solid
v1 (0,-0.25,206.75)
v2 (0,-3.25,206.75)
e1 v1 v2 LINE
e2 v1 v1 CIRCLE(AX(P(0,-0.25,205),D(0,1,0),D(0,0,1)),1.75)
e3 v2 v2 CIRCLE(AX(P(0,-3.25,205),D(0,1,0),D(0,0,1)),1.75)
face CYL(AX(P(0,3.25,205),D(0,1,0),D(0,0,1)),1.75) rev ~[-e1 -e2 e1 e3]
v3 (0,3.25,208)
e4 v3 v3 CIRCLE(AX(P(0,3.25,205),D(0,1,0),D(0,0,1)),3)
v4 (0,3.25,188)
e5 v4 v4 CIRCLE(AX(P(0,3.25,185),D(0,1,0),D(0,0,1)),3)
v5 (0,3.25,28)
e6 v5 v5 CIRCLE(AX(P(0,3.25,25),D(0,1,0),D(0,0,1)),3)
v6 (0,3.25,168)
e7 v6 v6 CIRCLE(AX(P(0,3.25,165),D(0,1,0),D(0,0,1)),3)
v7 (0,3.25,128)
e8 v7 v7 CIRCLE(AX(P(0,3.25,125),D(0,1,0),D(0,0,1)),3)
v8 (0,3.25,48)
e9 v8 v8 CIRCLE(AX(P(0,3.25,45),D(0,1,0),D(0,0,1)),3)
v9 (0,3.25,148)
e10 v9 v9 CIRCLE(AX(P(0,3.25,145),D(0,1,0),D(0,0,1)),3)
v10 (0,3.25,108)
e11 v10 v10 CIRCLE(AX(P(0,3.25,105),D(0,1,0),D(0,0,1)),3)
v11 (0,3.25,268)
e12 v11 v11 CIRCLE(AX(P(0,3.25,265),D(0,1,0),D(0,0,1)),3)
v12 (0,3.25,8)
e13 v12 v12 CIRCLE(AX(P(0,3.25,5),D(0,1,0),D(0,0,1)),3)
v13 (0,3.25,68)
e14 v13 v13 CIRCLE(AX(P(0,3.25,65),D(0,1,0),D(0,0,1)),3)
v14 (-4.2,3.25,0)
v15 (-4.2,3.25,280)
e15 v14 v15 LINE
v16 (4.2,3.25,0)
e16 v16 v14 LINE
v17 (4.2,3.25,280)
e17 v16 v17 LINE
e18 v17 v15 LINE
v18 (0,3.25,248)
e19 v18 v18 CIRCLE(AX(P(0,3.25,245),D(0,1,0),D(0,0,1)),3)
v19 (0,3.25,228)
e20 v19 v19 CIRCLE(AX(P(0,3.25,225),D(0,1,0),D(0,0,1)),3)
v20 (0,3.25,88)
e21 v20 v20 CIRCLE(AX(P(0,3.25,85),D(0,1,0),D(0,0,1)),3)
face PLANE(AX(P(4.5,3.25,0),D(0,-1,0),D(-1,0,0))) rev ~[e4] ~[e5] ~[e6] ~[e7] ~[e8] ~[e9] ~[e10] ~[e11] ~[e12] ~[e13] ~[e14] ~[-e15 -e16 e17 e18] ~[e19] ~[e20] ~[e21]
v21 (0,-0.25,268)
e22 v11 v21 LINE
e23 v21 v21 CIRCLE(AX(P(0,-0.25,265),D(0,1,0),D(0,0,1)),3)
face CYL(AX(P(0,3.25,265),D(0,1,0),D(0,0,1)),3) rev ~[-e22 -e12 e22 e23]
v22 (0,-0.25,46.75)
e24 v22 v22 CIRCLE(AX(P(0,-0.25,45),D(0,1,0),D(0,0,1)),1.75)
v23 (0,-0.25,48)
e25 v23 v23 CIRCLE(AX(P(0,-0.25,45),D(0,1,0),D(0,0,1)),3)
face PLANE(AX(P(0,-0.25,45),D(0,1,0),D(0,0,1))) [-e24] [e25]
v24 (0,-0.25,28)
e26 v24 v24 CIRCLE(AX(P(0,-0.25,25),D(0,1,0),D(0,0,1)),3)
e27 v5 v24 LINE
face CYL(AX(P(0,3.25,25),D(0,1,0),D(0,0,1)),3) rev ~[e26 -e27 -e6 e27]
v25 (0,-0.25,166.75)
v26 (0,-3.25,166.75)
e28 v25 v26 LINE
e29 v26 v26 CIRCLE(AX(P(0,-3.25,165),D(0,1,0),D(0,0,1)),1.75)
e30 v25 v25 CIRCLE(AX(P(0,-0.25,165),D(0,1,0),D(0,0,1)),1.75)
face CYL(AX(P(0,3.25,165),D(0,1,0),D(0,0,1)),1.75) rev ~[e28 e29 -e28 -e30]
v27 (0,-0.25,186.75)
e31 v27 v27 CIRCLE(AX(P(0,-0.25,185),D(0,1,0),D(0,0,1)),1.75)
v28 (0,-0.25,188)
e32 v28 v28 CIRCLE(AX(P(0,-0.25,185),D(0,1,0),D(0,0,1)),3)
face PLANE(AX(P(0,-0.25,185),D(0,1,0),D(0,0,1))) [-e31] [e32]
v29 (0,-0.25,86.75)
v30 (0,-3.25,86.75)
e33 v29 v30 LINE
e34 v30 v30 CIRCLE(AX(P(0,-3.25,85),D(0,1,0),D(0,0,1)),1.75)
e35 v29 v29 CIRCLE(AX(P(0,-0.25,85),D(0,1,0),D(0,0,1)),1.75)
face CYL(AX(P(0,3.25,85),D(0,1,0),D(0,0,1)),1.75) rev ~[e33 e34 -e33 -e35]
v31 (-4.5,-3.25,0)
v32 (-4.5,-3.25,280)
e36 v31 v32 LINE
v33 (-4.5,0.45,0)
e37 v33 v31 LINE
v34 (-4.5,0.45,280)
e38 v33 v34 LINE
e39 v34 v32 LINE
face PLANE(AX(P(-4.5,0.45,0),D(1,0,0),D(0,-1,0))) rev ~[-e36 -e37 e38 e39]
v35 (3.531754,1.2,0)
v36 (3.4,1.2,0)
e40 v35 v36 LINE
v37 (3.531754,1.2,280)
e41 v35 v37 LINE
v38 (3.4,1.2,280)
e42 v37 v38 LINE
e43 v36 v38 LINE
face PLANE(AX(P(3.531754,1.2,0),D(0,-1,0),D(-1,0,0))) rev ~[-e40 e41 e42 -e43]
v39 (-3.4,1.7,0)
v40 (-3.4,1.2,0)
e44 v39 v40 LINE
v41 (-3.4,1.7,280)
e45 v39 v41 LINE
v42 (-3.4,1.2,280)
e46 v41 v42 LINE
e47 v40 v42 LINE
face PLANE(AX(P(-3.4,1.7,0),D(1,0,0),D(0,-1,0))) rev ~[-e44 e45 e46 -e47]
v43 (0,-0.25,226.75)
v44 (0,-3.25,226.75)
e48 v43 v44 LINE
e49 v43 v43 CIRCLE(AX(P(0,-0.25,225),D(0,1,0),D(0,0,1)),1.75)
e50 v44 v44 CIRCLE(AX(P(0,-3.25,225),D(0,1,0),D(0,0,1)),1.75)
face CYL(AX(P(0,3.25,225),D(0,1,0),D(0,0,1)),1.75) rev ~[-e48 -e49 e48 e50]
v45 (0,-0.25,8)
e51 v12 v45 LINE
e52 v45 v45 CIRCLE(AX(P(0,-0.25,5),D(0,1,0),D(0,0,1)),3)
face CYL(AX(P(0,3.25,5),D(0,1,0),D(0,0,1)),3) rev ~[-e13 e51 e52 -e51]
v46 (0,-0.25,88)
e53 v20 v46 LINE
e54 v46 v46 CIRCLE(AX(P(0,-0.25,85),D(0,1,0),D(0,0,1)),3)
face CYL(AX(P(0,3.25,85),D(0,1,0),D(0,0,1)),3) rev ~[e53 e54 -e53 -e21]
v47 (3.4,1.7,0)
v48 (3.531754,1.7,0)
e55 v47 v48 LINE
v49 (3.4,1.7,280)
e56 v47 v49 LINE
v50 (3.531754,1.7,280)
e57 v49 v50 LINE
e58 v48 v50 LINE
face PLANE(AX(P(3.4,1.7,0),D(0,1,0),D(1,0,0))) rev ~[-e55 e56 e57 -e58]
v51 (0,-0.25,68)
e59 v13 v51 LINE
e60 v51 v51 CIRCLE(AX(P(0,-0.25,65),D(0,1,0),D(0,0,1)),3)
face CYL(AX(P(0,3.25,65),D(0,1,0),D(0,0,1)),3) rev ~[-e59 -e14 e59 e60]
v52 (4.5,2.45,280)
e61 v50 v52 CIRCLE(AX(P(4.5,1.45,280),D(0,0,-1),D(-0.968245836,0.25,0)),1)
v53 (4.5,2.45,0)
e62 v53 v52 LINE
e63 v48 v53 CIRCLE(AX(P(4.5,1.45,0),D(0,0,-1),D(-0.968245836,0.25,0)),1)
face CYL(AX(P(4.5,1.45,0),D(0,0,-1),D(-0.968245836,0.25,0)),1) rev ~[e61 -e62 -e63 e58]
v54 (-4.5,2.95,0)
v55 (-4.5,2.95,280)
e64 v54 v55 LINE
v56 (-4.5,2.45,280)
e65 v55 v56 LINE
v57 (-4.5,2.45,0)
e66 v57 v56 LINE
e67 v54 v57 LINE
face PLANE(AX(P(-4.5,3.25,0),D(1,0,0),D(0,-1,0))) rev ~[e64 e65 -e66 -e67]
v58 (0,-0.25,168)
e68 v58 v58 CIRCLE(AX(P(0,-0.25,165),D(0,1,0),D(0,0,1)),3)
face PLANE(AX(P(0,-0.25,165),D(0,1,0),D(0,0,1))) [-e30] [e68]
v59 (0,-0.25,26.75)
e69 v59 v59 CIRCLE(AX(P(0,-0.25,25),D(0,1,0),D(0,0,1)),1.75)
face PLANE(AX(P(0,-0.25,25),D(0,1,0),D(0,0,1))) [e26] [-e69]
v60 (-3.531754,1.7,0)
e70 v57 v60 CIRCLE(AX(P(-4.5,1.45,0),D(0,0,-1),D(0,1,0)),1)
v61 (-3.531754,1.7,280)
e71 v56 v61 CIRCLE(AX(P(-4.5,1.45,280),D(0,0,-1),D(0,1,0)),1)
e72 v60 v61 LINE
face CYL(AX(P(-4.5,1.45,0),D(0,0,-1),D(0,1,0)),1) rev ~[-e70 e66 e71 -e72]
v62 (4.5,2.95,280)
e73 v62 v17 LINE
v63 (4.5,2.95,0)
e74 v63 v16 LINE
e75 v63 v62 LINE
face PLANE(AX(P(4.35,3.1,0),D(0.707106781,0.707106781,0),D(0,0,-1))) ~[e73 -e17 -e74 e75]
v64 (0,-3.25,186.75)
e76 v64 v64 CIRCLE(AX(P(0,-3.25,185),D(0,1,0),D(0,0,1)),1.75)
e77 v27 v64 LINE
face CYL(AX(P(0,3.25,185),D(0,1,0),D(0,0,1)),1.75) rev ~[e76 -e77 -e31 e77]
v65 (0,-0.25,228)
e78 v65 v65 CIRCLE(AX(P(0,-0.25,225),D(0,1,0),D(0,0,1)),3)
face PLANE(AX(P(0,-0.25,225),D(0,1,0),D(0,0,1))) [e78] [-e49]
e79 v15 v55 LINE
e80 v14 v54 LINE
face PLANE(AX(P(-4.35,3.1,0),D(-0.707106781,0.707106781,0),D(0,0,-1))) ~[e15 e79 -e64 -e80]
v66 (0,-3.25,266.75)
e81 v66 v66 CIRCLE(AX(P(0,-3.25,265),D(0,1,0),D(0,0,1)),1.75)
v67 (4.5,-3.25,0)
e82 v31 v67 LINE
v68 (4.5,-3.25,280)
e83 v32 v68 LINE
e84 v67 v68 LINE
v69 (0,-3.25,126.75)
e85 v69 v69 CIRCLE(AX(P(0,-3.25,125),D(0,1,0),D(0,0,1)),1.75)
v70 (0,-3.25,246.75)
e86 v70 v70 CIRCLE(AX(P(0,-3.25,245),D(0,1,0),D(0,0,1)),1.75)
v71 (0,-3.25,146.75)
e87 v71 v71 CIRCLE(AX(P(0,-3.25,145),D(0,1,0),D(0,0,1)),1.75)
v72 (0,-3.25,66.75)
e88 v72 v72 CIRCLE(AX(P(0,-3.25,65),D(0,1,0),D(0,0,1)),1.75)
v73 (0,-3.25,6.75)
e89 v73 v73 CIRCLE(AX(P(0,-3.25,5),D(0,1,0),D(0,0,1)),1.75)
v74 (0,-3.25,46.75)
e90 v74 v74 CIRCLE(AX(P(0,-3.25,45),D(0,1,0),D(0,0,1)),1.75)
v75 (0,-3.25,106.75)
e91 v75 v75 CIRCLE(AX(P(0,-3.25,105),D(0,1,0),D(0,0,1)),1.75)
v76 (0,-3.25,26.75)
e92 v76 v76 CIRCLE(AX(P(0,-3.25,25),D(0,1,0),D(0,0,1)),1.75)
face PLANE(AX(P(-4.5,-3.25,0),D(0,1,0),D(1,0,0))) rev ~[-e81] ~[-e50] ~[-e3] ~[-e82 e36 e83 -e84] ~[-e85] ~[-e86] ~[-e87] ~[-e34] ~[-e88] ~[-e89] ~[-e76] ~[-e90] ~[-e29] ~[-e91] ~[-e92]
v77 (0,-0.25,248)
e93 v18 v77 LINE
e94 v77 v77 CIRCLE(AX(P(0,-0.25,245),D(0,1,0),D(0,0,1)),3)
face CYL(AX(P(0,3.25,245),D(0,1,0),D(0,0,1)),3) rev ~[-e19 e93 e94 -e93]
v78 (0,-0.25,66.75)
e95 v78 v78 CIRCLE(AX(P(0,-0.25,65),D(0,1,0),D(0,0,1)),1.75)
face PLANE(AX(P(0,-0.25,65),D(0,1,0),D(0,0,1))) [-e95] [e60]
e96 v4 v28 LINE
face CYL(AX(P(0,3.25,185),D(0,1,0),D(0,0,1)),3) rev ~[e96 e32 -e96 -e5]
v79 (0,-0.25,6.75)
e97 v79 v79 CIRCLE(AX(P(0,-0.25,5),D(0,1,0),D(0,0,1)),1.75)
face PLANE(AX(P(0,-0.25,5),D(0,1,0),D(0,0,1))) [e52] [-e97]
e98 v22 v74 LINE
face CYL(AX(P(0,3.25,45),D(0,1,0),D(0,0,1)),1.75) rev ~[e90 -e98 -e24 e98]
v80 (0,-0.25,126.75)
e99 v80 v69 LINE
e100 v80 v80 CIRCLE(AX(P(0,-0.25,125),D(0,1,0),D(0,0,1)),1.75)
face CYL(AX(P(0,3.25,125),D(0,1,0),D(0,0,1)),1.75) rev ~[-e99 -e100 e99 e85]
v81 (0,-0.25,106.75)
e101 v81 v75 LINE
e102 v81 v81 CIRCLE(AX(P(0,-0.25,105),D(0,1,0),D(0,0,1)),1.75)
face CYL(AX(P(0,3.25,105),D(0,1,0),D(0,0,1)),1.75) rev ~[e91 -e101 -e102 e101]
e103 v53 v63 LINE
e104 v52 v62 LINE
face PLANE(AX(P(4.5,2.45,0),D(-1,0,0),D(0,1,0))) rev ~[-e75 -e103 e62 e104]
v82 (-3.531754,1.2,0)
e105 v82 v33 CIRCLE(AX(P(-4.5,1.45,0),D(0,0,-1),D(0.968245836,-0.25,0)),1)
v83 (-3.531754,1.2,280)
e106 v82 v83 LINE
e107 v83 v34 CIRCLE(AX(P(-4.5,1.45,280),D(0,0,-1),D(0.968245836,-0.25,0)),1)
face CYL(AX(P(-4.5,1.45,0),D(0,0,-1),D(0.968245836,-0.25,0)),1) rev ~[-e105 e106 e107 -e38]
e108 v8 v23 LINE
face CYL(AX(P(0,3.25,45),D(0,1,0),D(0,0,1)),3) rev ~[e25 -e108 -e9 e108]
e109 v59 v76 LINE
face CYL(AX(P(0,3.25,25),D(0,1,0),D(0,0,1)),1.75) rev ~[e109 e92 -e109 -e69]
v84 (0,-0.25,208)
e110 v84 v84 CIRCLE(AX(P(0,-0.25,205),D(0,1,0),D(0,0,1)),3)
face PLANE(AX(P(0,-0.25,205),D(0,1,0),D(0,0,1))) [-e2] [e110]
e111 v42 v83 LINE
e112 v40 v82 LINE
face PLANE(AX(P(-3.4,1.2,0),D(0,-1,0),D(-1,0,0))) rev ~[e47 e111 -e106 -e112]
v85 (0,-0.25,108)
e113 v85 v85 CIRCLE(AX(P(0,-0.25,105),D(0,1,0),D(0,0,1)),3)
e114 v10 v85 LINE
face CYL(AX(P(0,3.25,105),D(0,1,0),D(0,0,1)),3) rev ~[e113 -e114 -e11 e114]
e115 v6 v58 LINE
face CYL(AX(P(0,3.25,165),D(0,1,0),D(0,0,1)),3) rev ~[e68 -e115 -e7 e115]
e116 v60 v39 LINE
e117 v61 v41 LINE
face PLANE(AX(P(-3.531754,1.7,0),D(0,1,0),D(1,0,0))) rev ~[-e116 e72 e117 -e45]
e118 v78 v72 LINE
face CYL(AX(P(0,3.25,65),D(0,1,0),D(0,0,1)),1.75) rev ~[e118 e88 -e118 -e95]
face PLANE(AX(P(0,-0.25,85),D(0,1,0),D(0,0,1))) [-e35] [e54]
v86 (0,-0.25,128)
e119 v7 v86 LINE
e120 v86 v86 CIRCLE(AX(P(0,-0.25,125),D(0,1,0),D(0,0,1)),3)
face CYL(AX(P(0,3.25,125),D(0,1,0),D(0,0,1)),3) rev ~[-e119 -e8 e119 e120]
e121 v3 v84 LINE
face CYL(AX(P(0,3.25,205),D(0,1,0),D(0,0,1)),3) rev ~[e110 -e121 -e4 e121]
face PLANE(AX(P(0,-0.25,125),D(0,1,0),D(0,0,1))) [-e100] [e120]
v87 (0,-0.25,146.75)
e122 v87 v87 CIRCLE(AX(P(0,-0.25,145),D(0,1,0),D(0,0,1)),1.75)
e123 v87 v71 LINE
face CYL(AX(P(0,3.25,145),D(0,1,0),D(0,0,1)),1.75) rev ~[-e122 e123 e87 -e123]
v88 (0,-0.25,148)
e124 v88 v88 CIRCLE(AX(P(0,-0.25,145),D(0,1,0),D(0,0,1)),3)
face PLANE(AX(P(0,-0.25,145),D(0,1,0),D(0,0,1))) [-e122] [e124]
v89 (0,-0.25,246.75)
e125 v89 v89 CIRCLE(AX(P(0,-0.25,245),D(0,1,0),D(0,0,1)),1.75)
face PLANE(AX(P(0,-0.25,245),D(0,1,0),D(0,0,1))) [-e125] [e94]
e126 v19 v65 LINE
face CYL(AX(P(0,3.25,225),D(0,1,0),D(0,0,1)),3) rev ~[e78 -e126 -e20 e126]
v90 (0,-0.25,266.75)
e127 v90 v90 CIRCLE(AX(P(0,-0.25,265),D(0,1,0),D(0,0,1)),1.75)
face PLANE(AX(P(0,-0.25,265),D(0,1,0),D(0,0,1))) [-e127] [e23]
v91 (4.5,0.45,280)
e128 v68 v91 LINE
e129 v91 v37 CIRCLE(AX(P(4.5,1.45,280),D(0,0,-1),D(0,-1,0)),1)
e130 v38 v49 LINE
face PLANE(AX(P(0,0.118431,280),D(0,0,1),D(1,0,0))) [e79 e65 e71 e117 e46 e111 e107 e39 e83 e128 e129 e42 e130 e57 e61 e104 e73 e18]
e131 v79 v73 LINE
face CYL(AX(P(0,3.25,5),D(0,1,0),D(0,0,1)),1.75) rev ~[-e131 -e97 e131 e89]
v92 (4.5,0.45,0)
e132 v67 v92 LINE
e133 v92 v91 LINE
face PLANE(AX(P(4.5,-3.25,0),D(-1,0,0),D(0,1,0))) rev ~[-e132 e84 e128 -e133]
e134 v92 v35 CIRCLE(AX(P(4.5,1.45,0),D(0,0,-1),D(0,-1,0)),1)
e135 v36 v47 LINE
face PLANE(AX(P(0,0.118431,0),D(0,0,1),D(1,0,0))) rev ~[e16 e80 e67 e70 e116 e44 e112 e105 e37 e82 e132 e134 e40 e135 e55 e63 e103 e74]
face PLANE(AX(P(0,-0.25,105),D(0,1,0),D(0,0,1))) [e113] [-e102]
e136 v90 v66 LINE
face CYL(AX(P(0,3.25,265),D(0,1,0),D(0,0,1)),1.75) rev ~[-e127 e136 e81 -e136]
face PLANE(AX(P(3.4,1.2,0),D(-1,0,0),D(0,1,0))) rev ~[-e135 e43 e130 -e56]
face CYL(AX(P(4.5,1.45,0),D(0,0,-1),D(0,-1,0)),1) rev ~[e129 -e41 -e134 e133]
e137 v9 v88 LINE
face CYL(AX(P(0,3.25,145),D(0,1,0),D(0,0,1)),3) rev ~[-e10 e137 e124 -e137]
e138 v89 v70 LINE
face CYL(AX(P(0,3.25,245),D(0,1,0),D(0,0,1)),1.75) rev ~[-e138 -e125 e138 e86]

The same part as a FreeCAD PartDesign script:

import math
import FreeCAD as App
import Part
import Sketcher
from FreeCAD import Vector


def edges_at(feature, points):
    """Names of the edges that pass closest to the given points."""
    edges = feature.Shape.Edges
    near = lambda p: min(range(len(edges)), key=lambda i: edges[i].distToShape(Part.Vertex(*p))[0])
    return sorted({f"Edge{near(p) + 1}" for p in points})

doc = App.newDocument("Part")
params = doc.addObject("Spreadsheet::Sheet", "Params")
for row, (alias, value) in enumerate([
    ("sketch1_radius", "1 mm"),
    ("sketch1_width", "9 mm"),
    ("sketch1_height", "3.7 mm"),
    ("sketch1_height2", "0.5 mm"),
    ("sketch1_height3", "0.8 mm"),
    ("pad1_length", "280 mm"),
    ("sketch2_diameter", "6 mm"),
    ("pocket1_length", "3.5 mm"),
    ("sketch3_diameter", "3.5 mm"),
    ("linearpattern_pitch", "20 mm"),
    ("chamfer_size", "0.3 mm"),
], start=1):
    params.set(f"A{row}", alias)
    params.set(f"B{row}", "=" + value)
    params.setAlias(f"B{row}", alias)

body = doc.addObject("PartDesign::Body", "Body")

# Sketch on XY plane
sketch1 = doc.addObject("Sketcher::SketchObject", "Sketch")
body.addObject(sketch1)
sketch1.AttachmentSupport = (doc.XY_Plane, [""])
sketch1.MapMode = "FlatFace"
sketch1.addGeometry([
    Part.LineSegment(Vector(-4.5, -3.25, 0), Vector(4.5, -3.25, 0)),  # 0
    Part.LineSegment(Vector(4.5, -3.25, 0), Vector(4.5, 0.45, 0)),  # 1
    Part.ArcOfCircle(Part.Circle(Vector(4.5, 1.45, 0), Vector(0, 0, 1), 1), math.radians(-166), math.radians(-90)),  # 2
    Part.LineSegment(Vector(3.53, 1.2, 0), Vector(3.4, 1.2, 0)),  # 3
    Part.LineSegment(Vector(3.4, 1.2, 0), Vector(3.4, 1.7, 0)),  # 4
    Part.LineSegment(Vector(3.4, 1.7, 0), Vector(3.53, 1.7, 0)),  # 5
    Part.ArcOfCircle(Part.Circle(Vector(4.5, 1.45, 0), Vector(0, 0, 1), 1), math.radians(90), math.radians(166)),  # 6
    Part.LineSegment(Vector(4.5, 2.45, 0), Vector(4.5, 3.25, 0)),  # 7
    Part.LineSegment(Vector(4.5, 3.25, 0), Vector(-4.5, 3.25, 0)),  # 8
    Part.LineSegment(Vector(-4.5, 3.25, 0), Vector(-4.5, 2.45, 0)),  # 9
    Part.ArcOfCircle(Part.Circle(Vector(-4.5, 1.45, 0), Vector(0, 0, 1), 1), math.radians(14), math.radians(90)),  # 10
    Part.LineSegment(Vector(-3.53, 1.7, 0), Vector(-3.4, 1.7, 0)),  # 11
    Part.LineSegment(Vector(-3.4, 1.7, 0), Vector(-3.4, 1.2, 0)),  # 12
    Part.LineSegment(Vector(-3.4, 1.2, 0), Vector(-3.53, 1.2, 0)),  # 13
    Part.ArcOfCircle(Part.Circle(Vector(-4.5, 1.45, 0), Vector(0, 0, 1), 1), math.radians(-90), math.radians(-14)),  # 14
    Part.LineSegment(Vector(-4.5, 0.45, 0), Vector(-4.5, -3.25, 0)),  # 15
], False)
sketch1.addConstraint([
    Sketcher.Constraint("Coincident", 0, 2, 1, 1),
    Sketcher.Constraint("Coincident", 1, 2, 2, 2),
    Sketcher.Constraint("Coincident", 2, 1, 3, 1),
    Sketcher.Constraint("Coincident", 3, 2, 4, 1),
    Sketcher.Constraint("Coincident", 4, 2, 5, 1),
    Sketcher.Constraint("Coincident", 5, 2, 6, 2),
    Sketcher.Constraint("Coincident", 6, 1, 7, 1),
    Sketcher.Constraint("Coincident", 7, 2, 8, 1),
    Sketcher.Constraint("Coincident", 8, 2, 9, 1),
    Sketcher.Constraint("Coincident", 9, 2, 10, 2),
    Sketcher.Constraint("Coincident", 10, 1, 11, 1),
    Sketcher.Constraint("Coincident", 11, 2, 12, 1),
    Sketcher.Constraint("Coincident", 12, 2, 13, 1),
    Sketcher.Constraint("Coincident", 13, 2, 14, 2),
    Sketcher.Constraint("Coincident", 14, 1, 15, 1),
    Sketcher.Constraint("Coincident", 15, 2, 0, 1),
    Sketcher.Constraint("Horizontal", 0),
    Sketcher.Constraint("Vertical", 1),
    Sketcher.Constraint("Horizontal", 3),
    Sketcher.Constraint("Vertical", 4),
    Sketcher.Constraint("Horizontal", 5),
    Sketcher.Constraint("Vertical", 7),
    Sketcher.Constraint("Horizontal", 8),
    Sketcher.Constraint("Vertical", 9),
    Sketcher.Constraint("Horizontal", 11),
    Sketcher.Constraint("Vertical", 12),
    Sketcher.Constraint("Horizontal", 13),
    Sketcher.Constraint("Vertical", 15),
    Sketcher.Constraint("Coincident", 6, 3, 2, 3),
    Sketcher.Constraint("Coincident", 14, 3, 10, 3),
    Sketcher.Constraint("Equal", 2, 6),
    Sketcher.Constraint("Equal", 6, 10),
    Sketcher.Constraint("Equal", 10, 14),
    Sketcher.Constraint("Symmetric", 0, 2, 8, 2, -1, 1),
    Sketcher.Constraint("Symmetric", 2, 3, 10, 3, -2),
    Sketcher.Constraint("Symmetric", 4, 2, 11, 2, -2),
    Sketcher.Constraint("Horizontal", 3, 2, 12, 2),
    Sketcher.Constraint("Vertical", 6, 3, 0, 2),
    Sketcher.Constraint("Vertical", 2, 1, 5, 2),
    Sketcher.Constraint("Vertical", 1, 2, 6, 1),
    Sketcher.Constraint("Vertical", 9, 2, 14, 1),
    Sketcher.Constraint("Radius", 2, 1.0),
    Sketcher.Constraint("DistanceX", 0, 1, 0, 2, 9.0),
    Sketcher.Constraint("DistanceY", 1, 1, 1, 2, 3.7),
    Sketcher.Constraint("DistanceY", 4, 1, 4, 2, 0.5),
    Sketcher.Constraint("DistanceY", 7, 1, 7, 2, 0.8),
    Sketcher.Constraint("DistanceX", -1, 1, 3, 2, 3.4),
])
sketch1.setExpression("Constraints[41]", "Params.sketch1_radius")
sketch1.setExpression("Constraints[42]", "Params.sketch1_width")
sketch1.setExpression("Constraints[43]", "Params.sketch1_height")
sketch1.setExpression("Constraints[44]", "Params.sketch1_height2")
sketch1.setExpression("Constraints[45]", "Params.sketch1_height3")
pad1 = doc.addObject("PartDesign::Pad", "Pad")
body.addObject(pad1)
pad1.Profile = sketch1
pad1.setExpression("Length", "Params.pad1_length")

# Sketch on XZ plane
sketch2 = doc.addObject("Sketcher::SketchObject", "Sketch001")
body.addObject(sketch2)
sketch2.AttachmentSupport = (doc.XZ_Plane, [""])
sketch2.MapMode = "FlatFace"
sketch2.AttachmentOffset = App.Placement(Vector(0, 0, -3.25), App.Rotation())
sketch2.addGeometry(Part.Circle(Vector(0, 5, 0), Vector(0, 0, 1), 3), False)
sketch2.addConstraint([
    Sketcher.Constraint("PointOnObject", 0, 3, -2),
    Sketcher.Constraint("Diameter", 0, 6.0),
    Sketcher.Constraint("DistanceY", -1, 1, 0, 3, 5.0),
])
sketch2.setExpression("Constraints[1]", "Params.sketch2_diameter")
pocket1 = doc.addObject("PartDesign::Pocket", "Pocket")
body.addObject(pocket1)
pocket1.Profile = sketch2
pocket1.setExpression("Length", "Params.pocket1_length")
pocket1.Reversed = True

# Sketch on XZ plane
sketch3 = doc.addObject("Sketcher::SketchObject", "Sketch002")
body.addObject(sketch3)
sketch3.AttachmentSupport = (doc.XZ_Plane, [""])
sketch3.MapMode = "FlatFace"
sketch3.AttachmentOffset = App.Placement(Vector(0, 0, -3.25), App.Rotation())
sketch3.addGeometry(Part.Circle(Vector(0, 5, 0), Vector(0, 0, 1), 1.8), False)
sketch3.addConstraint([
    Sketcher.Constraint("PointOnObject", 0, 3, -2),
    Sketcher.Constraint("Diameter", 0, 3.5),
    Sketcher.Constraint("DistanceY", -1, 1, 0, 3, 5.0),
])
sketch3.setExpression("Constraints[1]", "Params.sketch3_diameter")
pocket2 = doc.addObject("PartDesign::Pocket", "Pocket001")
body.addObject(pocket2)
pocket2.Profile = sketch3
pocket2.Type = "ThroughAll"
pocket2.Reversed = True
doc.recompute()

linearpattern = doc.addObject("PartDesign::LinearPattern", "LinearPattern")
body.addObject(linearpattern)
linearpattern.Originals = [pocket1, pocket2]
linearpattern.Direction = (doc.Z_Axis, [""])
linearpattern.Mode = "offset"
linearpattern.setExpression("Offset", "Params.linearpattern_pitch")
linearpattern.Occurrences = 40
body.Tip = linearpattern
doc.recompute()

chamfer = doc.addObject("PartDesign::Chamfer", "Chamfer")
body.addObject(chamfer)
chamfer.Base = (linearpattern, edges_at(linearpattern, [(-4.5, 3.25, 140), (4.5, 3.25, 140)]))
chamfer.setExpression("Size", "Params.chamfer_size")

doc.recompute()
